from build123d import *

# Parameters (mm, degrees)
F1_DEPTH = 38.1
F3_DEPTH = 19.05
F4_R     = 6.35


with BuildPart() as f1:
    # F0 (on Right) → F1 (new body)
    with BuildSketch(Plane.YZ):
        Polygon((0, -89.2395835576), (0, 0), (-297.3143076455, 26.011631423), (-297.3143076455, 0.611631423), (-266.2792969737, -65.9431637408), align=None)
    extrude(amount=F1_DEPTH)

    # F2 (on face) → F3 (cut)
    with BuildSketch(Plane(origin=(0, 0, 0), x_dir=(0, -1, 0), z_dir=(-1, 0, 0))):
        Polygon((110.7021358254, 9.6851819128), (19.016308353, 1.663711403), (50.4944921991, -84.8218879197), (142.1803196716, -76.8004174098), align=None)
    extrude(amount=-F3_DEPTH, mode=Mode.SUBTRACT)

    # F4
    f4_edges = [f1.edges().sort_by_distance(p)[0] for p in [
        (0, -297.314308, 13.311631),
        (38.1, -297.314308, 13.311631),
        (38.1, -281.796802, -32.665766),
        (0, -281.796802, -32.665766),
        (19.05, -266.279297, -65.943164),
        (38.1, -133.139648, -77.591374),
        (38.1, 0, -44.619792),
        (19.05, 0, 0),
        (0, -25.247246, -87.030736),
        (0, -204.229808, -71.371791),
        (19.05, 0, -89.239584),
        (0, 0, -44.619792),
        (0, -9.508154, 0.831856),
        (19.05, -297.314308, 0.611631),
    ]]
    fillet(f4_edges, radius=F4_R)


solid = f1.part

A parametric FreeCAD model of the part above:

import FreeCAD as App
import Part
import Sketcher
from FreeCAD import Vector
Q = App.Units.Quantity


def edges_at(feature, points):
    """Names of the edges that pass closest to the given points."""
    edges = feature.Shape.Edges
    near = lambda p: min(range(len(edges)), key=lambda i: edges[i].distToShape(Part.Vertex(*p))[0])
    return sorted({f"Edge{near(p) + 1}" for p in points})


def add_polygon(sketch, points):
    """Adds a closed chain of lines whose ends are joined by coincident constraints."""
    first, n = sketch.GeometryCount, len(points)
    for a, b in zip(points, points[1:] + points[:1]):
        sketch.addGeometry(Part.LineSegment(App.Vector(*a, 0), App.Vector(*b, 0)), False)
    for i in range(n):
        sketch.addConstraint(Sketcher.Constraint("Coincident", first + i, 2, first + (i + 1) % n, 1))

doc = App.newDocument("Part")
body = doc.addObject("PartDesign::Body", "Body")

sketch1 = doc.addObject("Sketcher::SketchObject", "Sketch")
body.addObject(sketch1)
sketch1.AttachmentSupport = (doc.YZ_Plane, [""])
sketch1.MapMode = "FlatFace"
add_polygon(sketch1, [(0, -89), (0, 0), (-297, 26), (-297, 1), (-266, -66)])
sketch1.addConstraint(Sketcher.Constraint("Vertical", 0))
sketch1.addConstraint(Sketcher.Constraint("Vertical", 2))
sketch1.addConstraint(Sketcher.Constraint("Coincident", 0, 2, -1, 1))
sketch1.addConstraint(Sketcher.Constraint("Parallel", 1, 4))
sketch1.addConstraint(Sketcher.Constraint("DistanceY", 2, 2, 2, 1, Q("1 in")))
sketch1.addConstraint(Sketcher.Constraint("Angle", 1, Q("175 deg")))
sketch1.addConstraint(Sketcher.Constraint("Angle", 3, Q("-65 deg")))
sketch1.addConstraint(Sketcher.Constraint("Distance", 1, Q("11.75 in")))
sketch1.addConstraint(Sketcher.Constraint("Distance", 3, Q("73.435091 mm")))
pad1 = doc.addObject("PartDesign::Pad", "Pad")
body.addObject(pad1)
pad1.Profile = sketch1
pad1.Length = Q("1.5 in")

sketch2 = doc.addObject("Sketcher::SketchObject", "Sketch001")
body.addObject(sketch2)
sketch2.AttachmentSupport = (doc.YZ_Plane, [""])
sketch2.MapMode = "FlatFace"
add_polygon(sketch2, [(-111, 10), (-19, 2), (-50, -85), (-142, -77)])
sketch2.addConstraint(Sketcher.Constraint("Parallel", 0, 2))
sketch2.addConstraint(Sketcher.Constraint("Parallel", 1, 3))
sketch2.addConstraint(Sketcher.Constraint("Equal", 0, 1))
sketch2.addConstraint(Sketcher.Constraint("Angle", 0, Q("-5 deg")))
sketch2.addConstraint(Sketcher.Constraint("Angle", 1, Q("-110 deg")))
sketch2.addConstraint(Sketcher.Constraint("DistanceY", 1, 2, 0, 2, Q("86.485599 mm")))
sketch2.addConstraint(Sketcher.Constraint("DistanceX", 0, 2, -1, 1, Q("19.016308 mm")))
sketch2.addConstraint(Sketcher.Constraint("DistanceY", -1, 1, 0, 2, Q("1.663711 mm")))
pocket1 = doc.addObject("PartDesign::Pocket", "Pocket")
body.addObject(pocket1)
pocket1.Profile = sketch2
pocket1.Length = Q("0.75 in")
pocket1.Reversed = True
doc.recompute()

fillet = doc.addObject("PartDesign::Fillet", "Fillet")
body.addObject(fillet)
fillet.Base = (pocket1, edges_at(pocket1, [
    (0, -297.314, 13.312),
    (38.1, -297.314, 13.312),
    (38.1, -281.797, -32.666),
    (0, -281.797, -32.666),
    (19.05, -266.279, -65.943),
    (38.1, -133.14, -77.591),
    (38.1, 0, -44.62),
    (19.05, 0, 0),
    (0, -25.247, -87.031),
    (0, -204.23, -71.372),
    (19.05, 0, -89.24),
    (0, 0, -44.62),
    (0, -9.508, 0.832),
    (19.05, -297.314, 0.612),
]))
fillet.Radius = Q("0.25 in")

doc.recompute()
